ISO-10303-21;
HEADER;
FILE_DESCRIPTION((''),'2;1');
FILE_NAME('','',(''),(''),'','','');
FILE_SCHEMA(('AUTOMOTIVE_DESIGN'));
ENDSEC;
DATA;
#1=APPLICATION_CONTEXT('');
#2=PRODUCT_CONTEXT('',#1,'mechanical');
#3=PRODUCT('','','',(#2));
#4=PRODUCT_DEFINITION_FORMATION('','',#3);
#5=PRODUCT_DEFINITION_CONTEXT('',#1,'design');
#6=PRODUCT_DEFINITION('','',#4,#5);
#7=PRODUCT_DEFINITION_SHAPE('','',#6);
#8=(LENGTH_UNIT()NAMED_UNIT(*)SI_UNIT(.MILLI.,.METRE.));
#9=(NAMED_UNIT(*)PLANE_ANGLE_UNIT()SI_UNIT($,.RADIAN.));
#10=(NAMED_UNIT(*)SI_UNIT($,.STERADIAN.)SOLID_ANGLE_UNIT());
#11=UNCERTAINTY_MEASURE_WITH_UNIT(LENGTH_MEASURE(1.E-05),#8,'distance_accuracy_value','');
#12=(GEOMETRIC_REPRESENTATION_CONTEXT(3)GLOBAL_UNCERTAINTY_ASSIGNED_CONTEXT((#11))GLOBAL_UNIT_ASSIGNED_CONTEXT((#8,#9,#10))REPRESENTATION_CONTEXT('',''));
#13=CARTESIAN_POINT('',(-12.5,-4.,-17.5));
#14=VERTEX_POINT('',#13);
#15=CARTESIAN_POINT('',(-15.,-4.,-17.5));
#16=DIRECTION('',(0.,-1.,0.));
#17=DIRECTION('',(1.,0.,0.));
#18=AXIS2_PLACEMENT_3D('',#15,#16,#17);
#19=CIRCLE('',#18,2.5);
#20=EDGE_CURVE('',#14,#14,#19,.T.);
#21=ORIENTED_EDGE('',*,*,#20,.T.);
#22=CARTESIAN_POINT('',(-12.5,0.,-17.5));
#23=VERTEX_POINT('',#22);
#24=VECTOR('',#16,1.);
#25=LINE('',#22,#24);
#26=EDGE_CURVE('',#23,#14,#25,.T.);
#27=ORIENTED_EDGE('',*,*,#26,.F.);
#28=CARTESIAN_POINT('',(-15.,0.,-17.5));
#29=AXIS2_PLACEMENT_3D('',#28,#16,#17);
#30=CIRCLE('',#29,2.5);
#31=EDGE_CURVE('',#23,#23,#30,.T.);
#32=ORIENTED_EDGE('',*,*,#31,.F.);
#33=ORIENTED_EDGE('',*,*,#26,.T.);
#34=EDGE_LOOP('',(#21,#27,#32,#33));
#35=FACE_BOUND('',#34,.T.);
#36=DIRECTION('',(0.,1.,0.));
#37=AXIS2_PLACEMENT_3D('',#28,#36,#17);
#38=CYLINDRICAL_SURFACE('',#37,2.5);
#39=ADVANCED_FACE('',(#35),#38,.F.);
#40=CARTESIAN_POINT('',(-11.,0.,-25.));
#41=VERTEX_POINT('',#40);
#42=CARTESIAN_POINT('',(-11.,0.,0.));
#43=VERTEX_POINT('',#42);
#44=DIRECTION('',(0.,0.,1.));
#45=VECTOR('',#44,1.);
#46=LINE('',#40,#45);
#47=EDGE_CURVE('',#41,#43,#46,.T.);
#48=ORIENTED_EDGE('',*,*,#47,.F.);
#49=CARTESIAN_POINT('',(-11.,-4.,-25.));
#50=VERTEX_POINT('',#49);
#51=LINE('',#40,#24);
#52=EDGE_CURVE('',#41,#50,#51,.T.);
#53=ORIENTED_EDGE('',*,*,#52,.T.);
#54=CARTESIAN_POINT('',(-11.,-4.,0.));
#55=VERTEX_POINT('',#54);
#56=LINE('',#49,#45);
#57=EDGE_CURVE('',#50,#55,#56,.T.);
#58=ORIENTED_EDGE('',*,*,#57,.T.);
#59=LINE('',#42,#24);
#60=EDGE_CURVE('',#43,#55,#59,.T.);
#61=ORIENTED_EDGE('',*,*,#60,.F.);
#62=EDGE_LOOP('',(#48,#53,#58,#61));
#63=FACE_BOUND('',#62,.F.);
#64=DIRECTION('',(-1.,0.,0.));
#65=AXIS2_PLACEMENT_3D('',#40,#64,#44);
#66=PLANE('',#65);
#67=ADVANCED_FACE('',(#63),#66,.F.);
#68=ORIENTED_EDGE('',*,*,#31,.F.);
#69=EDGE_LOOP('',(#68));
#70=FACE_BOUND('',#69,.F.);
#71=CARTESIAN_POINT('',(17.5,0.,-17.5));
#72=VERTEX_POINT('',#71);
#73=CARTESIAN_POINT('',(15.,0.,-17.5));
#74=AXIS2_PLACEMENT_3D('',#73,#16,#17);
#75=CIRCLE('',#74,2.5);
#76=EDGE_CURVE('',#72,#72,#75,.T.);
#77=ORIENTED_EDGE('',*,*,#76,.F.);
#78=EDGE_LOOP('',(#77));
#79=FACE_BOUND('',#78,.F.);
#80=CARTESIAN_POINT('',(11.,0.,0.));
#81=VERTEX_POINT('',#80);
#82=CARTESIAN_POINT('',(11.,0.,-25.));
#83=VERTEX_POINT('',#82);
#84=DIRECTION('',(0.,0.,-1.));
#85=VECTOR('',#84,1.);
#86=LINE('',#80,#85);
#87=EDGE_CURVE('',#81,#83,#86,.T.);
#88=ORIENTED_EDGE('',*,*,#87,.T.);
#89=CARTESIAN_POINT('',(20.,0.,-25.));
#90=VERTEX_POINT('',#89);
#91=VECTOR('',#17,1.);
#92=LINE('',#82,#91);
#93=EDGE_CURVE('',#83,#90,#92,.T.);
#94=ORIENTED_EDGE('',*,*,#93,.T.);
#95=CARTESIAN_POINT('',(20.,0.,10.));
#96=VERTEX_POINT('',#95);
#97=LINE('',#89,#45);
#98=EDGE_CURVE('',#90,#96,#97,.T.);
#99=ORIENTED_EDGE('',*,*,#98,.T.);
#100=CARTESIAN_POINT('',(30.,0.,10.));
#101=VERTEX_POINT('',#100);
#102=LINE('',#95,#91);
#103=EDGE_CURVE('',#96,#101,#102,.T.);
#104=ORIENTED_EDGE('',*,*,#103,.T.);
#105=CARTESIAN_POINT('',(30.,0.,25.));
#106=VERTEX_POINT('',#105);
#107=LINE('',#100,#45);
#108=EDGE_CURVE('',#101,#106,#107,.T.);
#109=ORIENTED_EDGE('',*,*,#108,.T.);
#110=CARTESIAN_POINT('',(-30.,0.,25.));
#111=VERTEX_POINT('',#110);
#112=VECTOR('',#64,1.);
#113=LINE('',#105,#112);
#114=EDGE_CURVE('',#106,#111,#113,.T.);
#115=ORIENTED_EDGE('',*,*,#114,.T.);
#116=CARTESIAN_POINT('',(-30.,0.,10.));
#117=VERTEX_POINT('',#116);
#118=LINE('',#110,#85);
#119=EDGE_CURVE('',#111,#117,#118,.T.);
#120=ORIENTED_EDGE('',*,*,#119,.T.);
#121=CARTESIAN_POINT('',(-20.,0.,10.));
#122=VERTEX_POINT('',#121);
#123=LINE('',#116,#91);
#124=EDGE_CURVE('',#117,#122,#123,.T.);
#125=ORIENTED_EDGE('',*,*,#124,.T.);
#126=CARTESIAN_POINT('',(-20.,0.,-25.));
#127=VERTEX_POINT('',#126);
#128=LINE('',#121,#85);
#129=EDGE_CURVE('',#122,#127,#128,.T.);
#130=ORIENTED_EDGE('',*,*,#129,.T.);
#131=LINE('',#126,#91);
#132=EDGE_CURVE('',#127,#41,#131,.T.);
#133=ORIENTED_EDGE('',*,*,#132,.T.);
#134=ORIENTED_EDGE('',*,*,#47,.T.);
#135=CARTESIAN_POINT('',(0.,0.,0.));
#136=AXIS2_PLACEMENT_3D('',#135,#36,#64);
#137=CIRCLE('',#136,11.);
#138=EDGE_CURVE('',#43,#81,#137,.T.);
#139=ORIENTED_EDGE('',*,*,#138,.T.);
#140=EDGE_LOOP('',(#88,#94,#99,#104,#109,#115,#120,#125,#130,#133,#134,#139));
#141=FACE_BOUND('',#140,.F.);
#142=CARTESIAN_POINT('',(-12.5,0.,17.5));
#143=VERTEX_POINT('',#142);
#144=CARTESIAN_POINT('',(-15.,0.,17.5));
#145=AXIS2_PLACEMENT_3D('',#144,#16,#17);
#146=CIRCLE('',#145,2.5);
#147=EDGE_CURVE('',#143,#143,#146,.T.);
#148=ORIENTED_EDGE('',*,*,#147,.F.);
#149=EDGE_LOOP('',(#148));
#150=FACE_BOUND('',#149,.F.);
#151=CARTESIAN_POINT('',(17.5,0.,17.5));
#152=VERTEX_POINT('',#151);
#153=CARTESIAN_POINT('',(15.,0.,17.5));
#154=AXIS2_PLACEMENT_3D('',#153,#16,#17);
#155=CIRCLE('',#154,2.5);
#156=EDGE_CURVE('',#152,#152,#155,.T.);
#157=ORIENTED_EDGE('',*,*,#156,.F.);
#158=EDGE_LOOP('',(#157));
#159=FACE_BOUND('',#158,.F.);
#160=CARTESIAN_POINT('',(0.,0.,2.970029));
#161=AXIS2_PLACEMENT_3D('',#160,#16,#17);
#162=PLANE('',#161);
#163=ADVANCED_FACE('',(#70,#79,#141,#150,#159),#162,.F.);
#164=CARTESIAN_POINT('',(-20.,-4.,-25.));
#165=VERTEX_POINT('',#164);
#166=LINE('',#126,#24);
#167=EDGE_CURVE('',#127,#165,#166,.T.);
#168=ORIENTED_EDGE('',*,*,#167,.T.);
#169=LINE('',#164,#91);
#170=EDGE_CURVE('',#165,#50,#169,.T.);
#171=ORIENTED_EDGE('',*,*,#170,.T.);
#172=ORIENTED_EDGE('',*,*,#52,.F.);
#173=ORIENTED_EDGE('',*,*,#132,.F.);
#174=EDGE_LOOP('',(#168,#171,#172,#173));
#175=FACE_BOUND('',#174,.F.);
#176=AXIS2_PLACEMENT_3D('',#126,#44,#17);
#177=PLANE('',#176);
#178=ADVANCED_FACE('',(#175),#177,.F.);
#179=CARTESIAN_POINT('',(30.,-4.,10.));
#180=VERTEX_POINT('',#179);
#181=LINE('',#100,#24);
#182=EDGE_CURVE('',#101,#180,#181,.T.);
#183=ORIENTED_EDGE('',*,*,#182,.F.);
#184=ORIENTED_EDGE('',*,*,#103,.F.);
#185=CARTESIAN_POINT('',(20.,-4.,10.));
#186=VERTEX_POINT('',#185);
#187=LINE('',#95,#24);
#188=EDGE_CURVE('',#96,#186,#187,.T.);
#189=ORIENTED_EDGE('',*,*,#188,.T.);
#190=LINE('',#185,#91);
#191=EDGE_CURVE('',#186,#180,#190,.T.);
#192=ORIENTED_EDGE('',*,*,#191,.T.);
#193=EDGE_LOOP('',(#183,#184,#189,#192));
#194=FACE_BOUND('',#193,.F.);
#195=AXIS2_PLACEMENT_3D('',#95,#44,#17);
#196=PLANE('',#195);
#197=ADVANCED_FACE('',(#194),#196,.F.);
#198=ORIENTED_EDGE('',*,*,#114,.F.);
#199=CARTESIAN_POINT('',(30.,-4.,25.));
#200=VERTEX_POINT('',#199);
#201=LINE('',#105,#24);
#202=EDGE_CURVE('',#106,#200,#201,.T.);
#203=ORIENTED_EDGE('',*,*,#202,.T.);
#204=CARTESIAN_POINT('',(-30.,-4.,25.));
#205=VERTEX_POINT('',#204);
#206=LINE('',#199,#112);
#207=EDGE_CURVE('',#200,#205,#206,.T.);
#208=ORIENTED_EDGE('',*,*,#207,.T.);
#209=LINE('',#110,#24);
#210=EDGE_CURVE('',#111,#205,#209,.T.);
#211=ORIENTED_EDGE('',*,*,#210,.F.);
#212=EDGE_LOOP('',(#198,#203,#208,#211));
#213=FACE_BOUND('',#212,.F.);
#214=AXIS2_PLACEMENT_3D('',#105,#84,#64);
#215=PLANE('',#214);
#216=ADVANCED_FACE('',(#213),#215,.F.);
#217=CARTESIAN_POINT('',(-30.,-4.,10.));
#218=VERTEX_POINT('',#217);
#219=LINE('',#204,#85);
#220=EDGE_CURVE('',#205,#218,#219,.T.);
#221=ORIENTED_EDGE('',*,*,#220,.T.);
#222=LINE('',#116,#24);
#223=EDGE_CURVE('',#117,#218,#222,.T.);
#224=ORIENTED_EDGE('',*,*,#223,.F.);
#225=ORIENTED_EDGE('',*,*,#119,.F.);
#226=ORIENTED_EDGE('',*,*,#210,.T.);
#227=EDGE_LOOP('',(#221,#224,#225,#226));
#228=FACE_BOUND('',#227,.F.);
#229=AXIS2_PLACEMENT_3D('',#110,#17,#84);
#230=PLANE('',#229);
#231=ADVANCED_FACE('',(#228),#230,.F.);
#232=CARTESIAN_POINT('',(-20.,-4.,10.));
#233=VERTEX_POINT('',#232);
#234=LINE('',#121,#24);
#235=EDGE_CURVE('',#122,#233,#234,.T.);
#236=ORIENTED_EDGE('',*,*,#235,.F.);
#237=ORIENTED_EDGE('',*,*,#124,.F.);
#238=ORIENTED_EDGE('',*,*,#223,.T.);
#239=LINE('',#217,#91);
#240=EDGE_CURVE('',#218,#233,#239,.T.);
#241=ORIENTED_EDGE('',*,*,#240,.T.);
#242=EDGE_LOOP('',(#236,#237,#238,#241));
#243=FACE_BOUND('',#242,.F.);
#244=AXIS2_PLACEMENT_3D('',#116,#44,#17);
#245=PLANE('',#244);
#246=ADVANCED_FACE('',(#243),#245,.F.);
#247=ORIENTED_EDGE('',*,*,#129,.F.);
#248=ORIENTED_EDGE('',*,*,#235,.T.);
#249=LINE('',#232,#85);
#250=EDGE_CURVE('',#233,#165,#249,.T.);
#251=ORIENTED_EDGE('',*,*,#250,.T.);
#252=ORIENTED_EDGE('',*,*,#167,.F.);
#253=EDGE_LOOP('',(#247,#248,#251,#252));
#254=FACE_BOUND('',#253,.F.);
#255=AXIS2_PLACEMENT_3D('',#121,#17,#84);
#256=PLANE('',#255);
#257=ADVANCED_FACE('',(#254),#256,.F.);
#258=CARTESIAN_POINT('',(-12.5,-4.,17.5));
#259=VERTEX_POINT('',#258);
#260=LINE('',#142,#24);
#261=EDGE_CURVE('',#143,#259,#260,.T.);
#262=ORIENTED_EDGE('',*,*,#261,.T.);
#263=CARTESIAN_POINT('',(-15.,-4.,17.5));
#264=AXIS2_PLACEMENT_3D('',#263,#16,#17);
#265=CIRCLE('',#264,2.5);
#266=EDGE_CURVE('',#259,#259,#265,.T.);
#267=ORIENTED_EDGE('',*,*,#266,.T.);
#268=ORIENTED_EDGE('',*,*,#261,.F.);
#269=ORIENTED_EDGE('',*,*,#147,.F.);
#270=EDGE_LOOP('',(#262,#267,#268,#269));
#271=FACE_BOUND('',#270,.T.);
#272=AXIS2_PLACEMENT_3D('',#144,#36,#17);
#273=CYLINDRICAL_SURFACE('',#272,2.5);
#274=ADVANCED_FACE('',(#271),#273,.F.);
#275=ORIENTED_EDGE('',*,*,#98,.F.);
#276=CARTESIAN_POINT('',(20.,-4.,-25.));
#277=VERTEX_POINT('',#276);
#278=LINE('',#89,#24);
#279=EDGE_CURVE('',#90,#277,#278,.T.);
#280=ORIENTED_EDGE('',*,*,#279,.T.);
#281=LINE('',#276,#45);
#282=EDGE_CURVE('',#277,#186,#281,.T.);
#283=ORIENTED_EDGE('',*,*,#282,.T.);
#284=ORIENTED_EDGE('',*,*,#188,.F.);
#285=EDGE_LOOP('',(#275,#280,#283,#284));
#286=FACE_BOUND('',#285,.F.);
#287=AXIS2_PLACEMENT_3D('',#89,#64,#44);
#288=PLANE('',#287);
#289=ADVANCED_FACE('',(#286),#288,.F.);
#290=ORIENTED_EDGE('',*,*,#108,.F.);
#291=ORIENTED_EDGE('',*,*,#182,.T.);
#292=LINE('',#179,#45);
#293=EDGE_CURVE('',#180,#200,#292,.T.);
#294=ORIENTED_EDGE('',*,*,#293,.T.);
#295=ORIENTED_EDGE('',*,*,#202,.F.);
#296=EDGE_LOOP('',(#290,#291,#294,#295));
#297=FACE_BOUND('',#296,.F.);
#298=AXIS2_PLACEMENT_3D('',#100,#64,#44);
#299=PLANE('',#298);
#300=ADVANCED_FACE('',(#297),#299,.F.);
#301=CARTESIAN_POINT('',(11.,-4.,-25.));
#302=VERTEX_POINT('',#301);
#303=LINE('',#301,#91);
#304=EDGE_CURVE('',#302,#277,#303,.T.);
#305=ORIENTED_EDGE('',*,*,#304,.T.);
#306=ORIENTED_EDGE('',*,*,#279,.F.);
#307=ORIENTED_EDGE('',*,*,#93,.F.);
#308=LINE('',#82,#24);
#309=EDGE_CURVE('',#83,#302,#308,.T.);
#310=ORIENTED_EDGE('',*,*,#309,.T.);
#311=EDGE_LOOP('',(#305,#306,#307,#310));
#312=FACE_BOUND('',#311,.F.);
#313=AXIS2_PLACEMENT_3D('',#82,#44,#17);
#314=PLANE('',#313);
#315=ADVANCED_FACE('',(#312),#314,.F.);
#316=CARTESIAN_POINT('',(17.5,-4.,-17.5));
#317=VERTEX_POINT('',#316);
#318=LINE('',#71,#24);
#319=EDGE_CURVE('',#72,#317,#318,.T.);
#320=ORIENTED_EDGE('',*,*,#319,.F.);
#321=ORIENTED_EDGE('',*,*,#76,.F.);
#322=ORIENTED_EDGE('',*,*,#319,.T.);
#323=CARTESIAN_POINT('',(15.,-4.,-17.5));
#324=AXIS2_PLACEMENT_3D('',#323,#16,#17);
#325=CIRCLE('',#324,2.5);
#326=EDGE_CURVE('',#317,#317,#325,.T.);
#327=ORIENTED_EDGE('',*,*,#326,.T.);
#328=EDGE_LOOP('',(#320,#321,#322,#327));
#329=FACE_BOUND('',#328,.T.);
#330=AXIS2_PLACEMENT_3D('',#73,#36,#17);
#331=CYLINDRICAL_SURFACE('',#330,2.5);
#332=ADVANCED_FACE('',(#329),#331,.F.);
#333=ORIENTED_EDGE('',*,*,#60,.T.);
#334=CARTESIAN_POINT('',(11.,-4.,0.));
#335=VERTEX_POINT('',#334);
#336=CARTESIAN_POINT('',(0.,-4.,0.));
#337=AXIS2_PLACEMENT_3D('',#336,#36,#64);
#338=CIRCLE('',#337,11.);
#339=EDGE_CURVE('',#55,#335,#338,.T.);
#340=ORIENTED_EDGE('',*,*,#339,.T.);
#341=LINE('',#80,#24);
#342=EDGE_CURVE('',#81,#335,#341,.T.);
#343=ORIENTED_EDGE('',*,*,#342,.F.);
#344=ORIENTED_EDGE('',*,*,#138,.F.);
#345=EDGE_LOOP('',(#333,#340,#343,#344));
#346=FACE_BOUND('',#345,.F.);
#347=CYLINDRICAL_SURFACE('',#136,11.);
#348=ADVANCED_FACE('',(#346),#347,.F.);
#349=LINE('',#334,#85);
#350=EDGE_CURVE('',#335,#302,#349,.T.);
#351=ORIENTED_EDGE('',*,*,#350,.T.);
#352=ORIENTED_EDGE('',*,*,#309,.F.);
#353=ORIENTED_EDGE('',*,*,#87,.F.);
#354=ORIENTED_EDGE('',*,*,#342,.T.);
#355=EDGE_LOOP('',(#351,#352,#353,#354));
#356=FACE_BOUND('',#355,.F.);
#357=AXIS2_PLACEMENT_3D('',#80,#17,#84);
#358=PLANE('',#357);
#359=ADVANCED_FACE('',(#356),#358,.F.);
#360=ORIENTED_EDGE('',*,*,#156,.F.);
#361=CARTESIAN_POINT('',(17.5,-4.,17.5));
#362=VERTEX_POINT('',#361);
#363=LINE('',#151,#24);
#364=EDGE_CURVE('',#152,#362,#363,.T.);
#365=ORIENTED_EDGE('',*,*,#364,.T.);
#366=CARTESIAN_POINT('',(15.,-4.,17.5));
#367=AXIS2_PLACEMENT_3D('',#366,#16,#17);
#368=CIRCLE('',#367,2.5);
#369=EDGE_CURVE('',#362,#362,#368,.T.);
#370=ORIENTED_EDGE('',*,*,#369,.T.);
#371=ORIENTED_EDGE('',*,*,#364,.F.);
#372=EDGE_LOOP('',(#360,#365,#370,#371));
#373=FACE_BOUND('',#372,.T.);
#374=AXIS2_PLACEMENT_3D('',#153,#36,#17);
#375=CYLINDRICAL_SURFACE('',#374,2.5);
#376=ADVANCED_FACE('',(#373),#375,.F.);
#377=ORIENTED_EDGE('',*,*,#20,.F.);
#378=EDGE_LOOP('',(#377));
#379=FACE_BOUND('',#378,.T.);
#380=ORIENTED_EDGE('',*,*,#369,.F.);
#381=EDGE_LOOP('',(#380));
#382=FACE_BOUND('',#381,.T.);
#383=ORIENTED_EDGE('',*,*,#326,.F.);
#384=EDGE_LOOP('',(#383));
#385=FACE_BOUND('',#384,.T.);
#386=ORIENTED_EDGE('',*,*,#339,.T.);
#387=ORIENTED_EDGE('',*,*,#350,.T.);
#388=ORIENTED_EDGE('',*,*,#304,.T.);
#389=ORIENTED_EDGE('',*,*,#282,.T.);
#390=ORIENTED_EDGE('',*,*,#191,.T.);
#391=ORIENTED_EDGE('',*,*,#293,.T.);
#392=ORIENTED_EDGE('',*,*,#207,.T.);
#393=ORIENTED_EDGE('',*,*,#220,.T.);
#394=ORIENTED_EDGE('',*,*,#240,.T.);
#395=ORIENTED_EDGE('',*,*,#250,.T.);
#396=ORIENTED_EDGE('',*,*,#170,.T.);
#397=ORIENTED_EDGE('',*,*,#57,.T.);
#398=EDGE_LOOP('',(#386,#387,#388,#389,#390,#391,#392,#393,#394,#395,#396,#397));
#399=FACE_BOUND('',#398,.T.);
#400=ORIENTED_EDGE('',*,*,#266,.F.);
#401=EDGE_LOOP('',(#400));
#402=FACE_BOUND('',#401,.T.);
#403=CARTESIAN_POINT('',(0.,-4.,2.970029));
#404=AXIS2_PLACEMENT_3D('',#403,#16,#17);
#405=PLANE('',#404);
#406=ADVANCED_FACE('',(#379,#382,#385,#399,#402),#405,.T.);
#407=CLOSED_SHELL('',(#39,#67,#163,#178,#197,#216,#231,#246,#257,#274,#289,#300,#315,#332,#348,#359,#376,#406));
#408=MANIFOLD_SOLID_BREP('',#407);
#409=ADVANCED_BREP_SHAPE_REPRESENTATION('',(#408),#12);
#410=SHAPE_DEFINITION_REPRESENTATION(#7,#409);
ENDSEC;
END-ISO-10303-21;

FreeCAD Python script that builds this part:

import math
import FreeCAD as App
import Part
import Sketcher

V = App.Vector

doc = App.newDocument("Part")
body = doc.addObject("PartDesign::Body", "Body")

# Sketch on XZ plane
sketch1 = doc.addObject("Sketcher::SketchObject", "Sketch")
body.addObject(sketch1)
sketch1.AttachmentSupport = (doc.XZ_Plane, [""])
sketch1.MapMode = "FlatFace"
sketch1.addGeometry(Part.ArcOfCircle(Part.Circle(V(0, 0, 0), V(0, 0, 1), 11), math.radians(0), math.radians(180)), False)
sketch1.addGeometry(Part.LineSegment(V(11, 0, 0), V(11, -25, 0)), False)
sketch1.addGeometry(Part.LineSegment(V(11, -25, 0), V(20, -25, 0)), False)
sketch1.addGeometry(Part.LineSegment(V(20, -25, 0), V(20, 10, 0)), False)
sketch1.addGeometry(Part.LineSegment(V(20, 10, 0), V(30, 10, 0)), False)
sketch1.addGeometry(Part.LineSegment(V(30, 10, 0), V(30, 25, 0)), False)
sketch1.addGeometry(Part.LineSegment(V(30, 25, 0), V(-30, 25, 0)), False)
sketch1.addGeometry(Part.LineSegment(V(-30, 25, 0), V(-30, 10, 0)), False)
sketch1.addGeometry(Part.LineSegment(V(-30, 10, 0), V(-20, 10, 0)), False)
sketch1.addGeometry(Part.LineSegment(V(-20, 10, 0), V(-20, -25, 0)), False)
sketch1.addGeometry(Part.LineSegment(V(-20, -25, 0), V(-11, -25, 0)), False)
sketch1.addGeometry(Part.LineSegment(V(-11, -25, 0), V(-11, 0, 0)), False)
sketch1.addGeometry(Part.Circle(V(-15, -17.5, 0), V(0, 0, 1), 2.5), False)
sketch1.addGeometry(Part.Circle(V(15, -17.5, 0), V(0, 0, 1), 2.5), False)
sketch1.addGeometry(Part.Circle(V(-15, 17.5, 0), V(0, 0, 1), 2.5), False)
sketch1.addGeometry(Part.Circle(V(15, 17.5, 0), V(0, 0, 1), 2.5), False)
sketch1.addConstraint(Sketcher.Constraint("Tangent", 0, 1, 1, 1))
sketch1.addConstraint(Sketcher.Constraint("Coincident", 1, 2, 2, 1))
sketch1.addConstraint(Sketcher.Constraint("Coincident", 2, 2, 3, 1))
sketch1.addConstraint(Sketcher.Constraint("Coincident", 3, 2, 4, 1))
sketch1.addConstraint(Sketcher.Constraint("Coincident", 4, 2, 5, 1))
sketch1.addConstraint(Sketcher.Constraint("Coincident", 5, 2, 6, 1))
sketch1.addConstraint(Sketcher.Constraint("Coincident", 6, 2, 7, 1))
sketch1.addConstraint(Sketcher.Constraint("Coincident", 7, 2, 8, 1))
sketch1.addConstraint(Sketcher.Constraint("Coincident", 8, 2, 9, 1))
sketch1.addConstraint(Sketcher.Constraint("Coincident", 9, 2, 10, 1))
sketch1.addConstraint(Sketcher.Constraint("Coincident", 10, 2, 11, 1))
sketch1.addConstraint(Sketcher.Constraint("Tangent", 11, 2, 0, 2))
sketch1.addConstraint(Sketcher.Constraint("Vertical", 1))
sketch1.addConstraint(Sketcher.Constraint("Horizontal", 2))
sketch1.addConstraint(Sketcher.Constraint("Vertical", 3))
sketch1.addConstraint(Sketcher.Constraint("Horizontal", 4))
sketch1.addConstraint(Sketcher.Constraint("Vertical", 5))
sketch1.addConstraint(Sketcher.Constraint("Horizontal", 6))
sketch1.addConstraint(Sketcher.Constraint("Vertical", 7))
sketch1.addConstraint(Sketcher.Constraint("Horizontal", 8))
sketch1.addConstraint(Sketcher.Constraint("Vertical", 9))
sketch1.addConstraint(Sketcher.Constraint("Horizontal", 10))
sketch1.addConstraint(Sketcher.Constraint("Vertical", 11))
sketch1.addConstraint(Sketcher.Constraint("Coincident", 0, 3, -1, 1))
sketch1.addConstraint(Sketcher.Constraint("Equal", 12, 13))
sketch1.addConstraint(Sketcher.Constraint("Equal", 13, 14))
sketch1.addConstraint(Sketcher.Constraint("Equal", 14, 15))
sketch1.addConstraint(Sketcher.Constraint("Symmetric", 13, 3, 14, 3, -1, 1))
sketch1.addConstraint(Sketcher.Constraint("Symmetric", 12, 3, 15, 3, -1, 1))
sketch1.addConstraint(Sketcher.Constraint("Symmetric", 12, 3, 13, 3, -2))
sketch1.addConstraint(Sketcher.Constraint("Symmetric", 4, 2, 7, 2, -2))
sketch1.addConstraint(Sketcher.Constraint("Symmetric", 2, 2, 9, 2, -2))
sketch1.addConstraint(Sketcher.Constraint("Diameter", 12, 5.0))
sketch1.addConstraint(Sketcher.Constraint("Radius", 0, 11.0))
sketch1.addConstraint(Sketcher.Constraint("DistanceX", 2, 1, 2, 2, 9.0))
sketch1.addConstraint(Sketcher.Constraint("DistanceX", 4, 1, 4, 2, 10.0))
sketch1.addConstraint(Sketcher.Constraint("DistanceY", 1, 2, 1, 1, 25.0))
sketch1.addConstraint(Sketcher.Constraint("DistanceY", 3, 1, 3, 2, 35.0))
sketch1.addConstraint(Sketcher.Constraint("DistanceY", 5, 1, 5, 2, 15.0))
sketch1.addConstraint(Sketcher.Constraint("DistanceX", 12, 3, -1, 1, 15.0))
sketch1.addConstraint(Sketcher.Constraint("DistanceY", 12, 3, 14, 3, 35.0))
pad1 = doc.addObject("PartDesign::Pad", "Pad")
body.addObject(pad1)
pad1.Profile = sketch1
pad1.Length = 4

doc.recompute()
